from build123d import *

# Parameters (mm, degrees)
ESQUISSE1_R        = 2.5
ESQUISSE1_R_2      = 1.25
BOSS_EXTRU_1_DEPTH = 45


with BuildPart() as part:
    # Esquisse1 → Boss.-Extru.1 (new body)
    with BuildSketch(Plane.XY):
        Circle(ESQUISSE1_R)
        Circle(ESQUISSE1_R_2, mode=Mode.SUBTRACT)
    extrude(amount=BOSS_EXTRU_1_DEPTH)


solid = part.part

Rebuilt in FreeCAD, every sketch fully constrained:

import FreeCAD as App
import Part
import Sketcher

V = App.Vector

doc = App.newDocument("Part")
body = doc.addObject("PartDesign::Body", "Body")

sketch1 = body.newObject("Sketcher::SketchObject", "Sketch")
sketch1.AttachmentSupport = (doc.getObject("XY_Plane"), [""])
sketch1.MapMode = "FlatFace"
sketch1.addGeometry([
    Part.Circle(V(0, 0, 0), V(0, 0, 1), 2.5),
    Part.Circle(V(0, 0, 0), V(0, 0, 1), 1.2),
], False)
sketch1.addConstraint([
    Sketcher.Constraint("Coincident", 0, 3, -1, 1),
    Sketcher.Constraint("Coincident", 1, 3, -1, 1),
    Sketcher.Constraint("Diameter", 0, 5.0),
    Sketcher.Constraint("Diameter", 1, 2.5),
])
pad1 = body.newObject("PartDesign::Pad", "Pad")
pad1.Profile = sketch1
pad1.Length = 45

doc.recompute()
